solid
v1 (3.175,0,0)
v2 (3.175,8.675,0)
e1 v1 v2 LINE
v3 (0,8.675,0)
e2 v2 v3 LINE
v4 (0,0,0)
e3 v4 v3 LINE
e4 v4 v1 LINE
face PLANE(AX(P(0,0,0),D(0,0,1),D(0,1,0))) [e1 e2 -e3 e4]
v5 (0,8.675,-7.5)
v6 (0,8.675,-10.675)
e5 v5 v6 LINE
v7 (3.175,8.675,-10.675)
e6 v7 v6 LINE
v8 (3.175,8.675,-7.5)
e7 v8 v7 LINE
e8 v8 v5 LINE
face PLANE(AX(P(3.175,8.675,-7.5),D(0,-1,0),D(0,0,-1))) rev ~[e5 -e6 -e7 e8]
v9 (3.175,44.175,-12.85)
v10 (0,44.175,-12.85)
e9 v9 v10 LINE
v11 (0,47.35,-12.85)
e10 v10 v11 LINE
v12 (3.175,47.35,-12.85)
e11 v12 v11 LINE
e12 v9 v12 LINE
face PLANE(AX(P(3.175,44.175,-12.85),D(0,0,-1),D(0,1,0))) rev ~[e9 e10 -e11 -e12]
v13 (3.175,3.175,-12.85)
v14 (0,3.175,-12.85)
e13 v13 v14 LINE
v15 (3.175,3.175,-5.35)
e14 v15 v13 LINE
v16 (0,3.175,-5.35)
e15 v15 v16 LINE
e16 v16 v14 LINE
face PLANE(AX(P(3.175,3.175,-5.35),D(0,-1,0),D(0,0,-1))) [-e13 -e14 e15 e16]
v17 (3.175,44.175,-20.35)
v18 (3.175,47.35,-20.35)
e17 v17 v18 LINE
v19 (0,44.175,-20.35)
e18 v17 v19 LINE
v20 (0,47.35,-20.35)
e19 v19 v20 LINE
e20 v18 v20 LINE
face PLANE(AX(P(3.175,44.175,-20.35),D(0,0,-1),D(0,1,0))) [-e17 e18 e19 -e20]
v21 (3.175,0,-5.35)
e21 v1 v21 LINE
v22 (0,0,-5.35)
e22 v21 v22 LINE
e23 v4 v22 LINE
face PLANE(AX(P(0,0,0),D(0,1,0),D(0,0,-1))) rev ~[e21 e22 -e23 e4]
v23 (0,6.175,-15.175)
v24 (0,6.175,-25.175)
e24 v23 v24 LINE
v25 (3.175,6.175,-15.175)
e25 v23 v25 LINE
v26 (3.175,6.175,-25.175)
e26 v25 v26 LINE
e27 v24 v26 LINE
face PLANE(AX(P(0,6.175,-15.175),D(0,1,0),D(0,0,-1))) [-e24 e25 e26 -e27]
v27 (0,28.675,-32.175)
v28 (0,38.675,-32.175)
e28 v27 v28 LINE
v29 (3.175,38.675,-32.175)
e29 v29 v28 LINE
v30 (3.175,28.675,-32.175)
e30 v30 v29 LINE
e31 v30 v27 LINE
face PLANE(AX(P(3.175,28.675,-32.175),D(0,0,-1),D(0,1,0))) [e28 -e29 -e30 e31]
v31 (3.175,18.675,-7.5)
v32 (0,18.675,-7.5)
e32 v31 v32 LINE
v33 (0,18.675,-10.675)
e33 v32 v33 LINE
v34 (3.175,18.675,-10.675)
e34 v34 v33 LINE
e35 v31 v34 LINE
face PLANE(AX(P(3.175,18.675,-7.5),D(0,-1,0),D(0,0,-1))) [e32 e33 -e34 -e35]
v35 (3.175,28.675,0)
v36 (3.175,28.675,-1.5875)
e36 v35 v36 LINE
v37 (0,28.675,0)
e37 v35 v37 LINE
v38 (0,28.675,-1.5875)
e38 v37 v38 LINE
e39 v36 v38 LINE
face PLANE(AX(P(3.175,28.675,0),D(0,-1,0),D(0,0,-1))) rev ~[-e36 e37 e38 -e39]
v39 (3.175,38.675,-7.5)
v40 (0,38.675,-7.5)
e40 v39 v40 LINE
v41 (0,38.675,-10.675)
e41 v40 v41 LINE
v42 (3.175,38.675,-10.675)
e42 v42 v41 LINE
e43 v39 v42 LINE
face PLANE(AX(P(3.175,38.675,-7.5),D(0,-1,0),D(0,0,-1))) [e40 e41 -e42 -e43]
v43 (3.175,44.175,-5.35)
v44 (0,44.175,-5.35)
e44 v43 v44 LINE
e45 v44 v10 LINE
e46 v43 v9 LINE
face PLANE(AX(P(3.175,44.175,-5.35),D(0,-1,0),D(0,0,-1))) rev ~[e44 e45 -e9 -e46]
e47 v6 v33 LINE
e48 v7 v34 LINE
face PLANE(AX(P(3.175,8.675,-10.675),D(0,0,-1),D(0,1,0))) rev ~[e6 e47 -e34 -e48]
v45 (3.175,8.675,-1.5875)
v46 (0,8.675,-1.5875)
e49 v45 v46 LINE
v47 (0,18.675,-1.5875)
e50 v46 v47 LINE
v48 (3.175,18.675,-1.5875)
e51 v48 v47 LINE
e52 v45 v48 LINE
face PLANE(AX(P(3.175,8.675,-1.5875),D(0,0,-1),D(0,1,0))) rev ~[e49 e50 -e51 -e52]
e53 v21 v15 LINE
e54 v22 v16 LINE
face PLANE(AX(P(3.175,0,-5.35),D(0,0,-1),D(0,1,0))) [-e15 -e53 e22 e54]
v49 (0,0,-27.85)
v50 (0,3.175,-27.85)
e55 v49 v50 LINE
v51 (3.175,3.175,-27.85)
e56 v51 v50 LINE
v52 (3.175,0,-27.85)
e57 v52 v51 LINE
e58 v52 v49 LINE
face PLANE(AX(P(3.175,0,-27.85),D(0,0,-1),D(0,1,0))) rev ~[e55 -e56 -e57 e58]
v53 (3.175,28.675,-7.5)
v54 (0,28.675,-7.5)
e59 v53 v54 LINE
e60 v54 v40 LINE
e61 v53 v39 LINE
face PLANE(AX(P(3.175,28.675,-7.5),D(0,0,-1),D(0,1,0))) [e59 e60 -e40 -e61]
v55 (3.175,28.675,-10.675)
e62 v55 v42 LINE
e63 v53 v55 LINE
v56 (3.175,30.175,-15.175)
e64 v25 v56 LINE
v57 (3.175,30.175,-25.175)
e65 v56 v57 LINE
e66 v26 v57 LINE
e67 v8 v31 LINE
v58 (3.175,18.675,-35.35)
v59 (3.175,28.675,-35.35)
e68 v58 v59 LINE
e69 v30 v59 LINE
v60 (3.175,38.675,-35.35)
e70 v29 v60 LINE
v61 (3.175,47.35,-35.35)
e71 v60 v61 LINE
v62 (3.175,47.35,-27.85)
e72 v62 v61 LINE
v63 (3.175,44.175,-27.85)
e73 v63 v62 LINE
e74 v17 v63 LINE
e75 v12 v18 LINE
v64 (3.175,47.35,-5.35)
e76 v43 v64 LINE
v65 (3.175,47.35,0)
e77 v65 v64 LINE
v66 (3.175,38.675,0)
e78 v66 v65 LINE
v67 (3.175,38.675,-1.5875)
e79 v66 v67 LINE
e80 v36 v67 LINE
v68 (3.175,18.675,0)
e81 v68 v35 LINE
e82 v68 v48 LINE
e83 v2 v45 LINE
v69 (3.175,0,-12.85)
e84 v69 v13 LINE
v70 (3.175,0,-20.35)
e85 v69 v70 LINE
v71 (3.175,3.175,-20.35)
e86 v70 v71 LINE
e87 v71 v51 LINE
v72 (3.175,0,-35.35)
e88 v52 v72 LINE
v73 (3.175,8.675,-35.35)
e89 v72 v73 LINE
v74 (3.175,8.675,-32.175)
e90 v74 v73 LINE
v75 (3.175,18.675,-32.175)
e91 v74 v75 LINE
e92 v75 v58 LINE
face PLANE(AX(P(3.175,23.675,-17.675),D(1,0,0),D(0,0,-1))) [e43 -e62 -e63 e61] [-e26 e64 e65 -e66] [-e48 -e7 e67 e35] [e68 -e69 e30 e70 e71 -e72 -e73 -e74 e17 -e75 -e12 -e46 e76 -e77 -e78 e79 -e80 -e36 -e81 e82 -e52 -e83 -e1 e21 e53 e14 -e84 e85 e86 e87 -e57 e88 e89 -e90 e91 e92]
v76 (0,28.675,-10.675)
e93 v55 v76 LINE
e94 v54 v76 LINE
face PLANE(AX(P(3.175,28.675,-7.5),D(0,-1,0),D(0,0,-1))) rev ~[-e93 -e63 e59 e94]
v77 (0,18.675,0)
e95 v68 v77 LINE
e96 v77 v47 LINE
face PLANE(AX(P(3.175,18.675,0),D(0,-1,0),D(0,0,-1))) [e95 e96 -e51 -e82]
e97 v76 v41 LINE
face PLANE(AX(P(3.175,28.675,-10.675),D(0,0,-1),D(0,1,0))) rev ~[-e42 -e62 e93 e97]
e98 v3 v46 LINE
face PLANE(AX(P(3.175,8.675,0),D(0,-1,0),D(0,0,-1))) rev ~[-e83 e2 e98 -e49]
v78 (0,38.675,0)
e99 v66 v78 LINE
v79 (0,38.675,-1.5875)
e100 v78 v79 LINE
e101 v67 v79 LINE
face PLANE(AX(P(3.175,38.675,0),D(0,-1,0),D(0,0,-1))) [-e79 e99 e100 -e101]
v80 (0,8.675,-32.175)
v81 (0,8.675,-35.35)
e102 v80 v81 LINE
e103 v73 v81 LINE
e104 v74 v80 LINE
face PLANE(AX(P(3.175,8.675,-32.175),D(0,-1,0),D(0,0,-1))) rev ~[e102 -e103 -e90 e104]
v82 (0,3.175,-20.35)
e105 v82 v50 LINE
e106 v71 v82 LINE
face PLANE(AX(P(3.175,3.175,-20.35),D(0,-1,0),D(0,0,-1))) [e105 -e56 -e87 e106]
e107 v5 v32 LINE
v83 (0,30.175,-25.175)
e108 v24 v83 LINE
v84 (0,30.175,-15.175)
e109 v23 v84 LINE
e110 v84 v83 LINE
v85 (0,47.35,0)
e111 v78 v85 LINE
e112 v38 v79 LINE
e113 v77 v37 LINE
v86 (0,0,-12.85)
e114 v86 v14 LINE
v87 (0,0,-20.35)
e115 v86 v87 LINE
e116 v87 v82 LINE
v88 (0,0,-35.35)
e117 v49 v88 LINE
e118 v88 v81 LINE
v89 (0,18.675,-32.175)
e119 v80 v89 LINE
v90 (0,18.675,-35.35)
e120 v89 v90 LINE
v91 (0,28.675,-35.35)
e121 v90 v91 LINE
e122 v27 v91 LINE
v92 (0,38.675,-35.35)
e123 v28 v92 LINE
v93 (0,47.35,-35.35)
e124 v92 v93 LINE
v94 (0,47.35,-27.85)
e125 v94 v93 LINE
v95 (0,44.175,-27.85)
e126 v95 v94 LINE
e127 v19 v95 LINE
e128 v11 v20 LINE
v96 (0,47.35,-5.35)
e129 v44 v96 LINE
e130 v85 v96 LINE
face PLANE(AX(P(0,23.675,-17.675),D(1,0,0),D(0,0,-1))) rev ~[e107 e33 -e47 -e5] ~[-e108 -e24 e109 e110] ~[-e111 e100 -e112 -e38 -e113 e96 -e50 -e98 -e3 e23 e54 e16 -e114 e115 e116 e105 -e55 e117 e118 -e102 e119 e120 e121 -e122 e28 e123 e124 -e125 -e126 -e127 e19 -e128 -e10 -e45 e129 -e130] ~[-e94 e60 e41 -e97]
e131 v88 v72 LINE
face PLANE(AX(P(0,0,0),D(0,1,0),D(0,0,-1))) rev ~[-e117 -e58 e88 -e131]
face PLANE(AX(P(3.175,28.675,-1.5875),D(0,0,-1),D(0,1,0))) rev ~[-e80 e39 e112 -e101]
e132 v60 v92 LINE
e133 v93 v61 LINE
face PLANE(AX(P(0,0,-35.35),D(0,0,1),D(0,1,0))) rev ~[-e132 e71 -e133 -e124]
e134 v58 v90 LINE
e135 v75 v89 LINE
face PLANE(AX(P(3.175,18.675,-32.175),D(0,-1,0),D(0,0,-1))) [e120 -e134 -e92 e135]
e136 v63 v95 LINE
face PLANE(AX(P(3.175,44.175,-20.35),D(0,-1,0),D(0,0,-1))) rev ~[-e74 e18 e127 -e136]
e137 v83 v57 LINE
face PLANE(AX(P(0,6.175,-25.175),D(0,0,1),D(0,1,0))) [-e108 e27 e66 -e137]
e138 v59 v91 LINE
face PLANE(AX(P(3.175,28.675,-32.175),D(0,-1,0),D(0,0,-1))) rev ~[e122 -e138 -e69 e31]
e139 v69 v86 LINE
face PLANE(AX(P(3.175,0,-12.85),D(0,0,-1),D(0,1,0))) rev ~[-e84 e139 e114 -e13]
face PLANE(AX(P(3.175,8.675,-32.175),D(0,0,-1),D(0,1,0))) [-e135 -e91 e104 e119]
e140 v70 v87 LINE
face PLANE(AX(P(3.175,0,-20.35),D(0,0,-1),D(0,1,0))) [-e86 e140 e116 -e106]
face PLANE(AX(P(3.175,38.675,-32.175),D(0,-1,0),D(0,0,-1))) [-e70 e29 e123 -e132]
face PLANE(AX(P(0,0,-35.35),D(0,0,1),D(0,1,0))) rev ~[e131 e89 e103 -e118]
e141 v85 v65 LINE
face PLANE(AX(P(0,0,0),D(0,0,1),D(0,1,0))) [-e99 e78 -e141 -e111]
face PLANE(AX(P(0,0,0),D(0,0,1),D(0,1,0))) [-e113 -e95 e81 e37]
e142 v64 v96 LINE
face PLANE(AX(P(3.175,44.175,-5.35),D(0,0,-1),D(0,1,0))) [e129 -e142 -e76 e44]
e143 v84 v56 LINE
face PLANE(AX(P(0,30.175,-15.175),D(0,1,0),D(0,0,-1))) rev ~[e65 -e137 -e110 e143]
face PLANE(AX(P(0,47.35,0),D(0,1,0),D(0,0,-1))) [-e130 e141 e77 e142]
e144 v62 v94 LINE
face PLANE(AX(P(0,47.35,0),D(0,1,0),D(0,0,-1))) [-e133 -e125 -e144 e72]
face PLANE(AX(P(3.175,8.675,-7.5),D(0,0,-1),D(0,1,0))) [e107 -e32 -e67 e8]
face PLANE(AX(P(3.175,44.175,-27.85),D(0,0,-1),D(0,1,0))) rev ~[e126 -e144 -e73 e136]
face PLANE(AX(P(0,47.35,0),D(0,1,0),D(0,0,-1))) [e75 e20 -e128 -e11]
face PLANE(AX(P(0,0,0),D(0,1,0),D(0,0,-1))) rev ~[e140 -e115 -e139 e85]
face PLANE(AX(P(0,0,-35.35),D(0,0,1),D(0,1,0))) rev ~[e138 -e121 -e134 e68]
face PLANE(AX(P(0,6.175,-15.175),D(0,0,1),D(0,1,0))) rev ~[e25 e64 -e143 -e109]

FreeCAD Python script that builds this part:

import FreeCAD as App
import Part
import Sketcher

V = App.Vector


def add_polygon(sketch, points):
    """Adds a closed chain of lines whose ends are joined by coincident constraints."""
    first, n = sketch.GeometryCount, len(points)
    for a, b in zip(points, points[1:] + points[:1]):
        sketch.addGeometry(Part.LineSegment(App.Vector(*a, 0), App.Vector(*b, 0)), False)
    for i in range(n):
        sketch.addConstraint(Sketcher.Constraint("Coincident", first + i, 2, first + (i + 1) % n, 1))

doc = App.newDocument("Part")
params = doc.addObject("Spreadsheet::Sheet", "Params")
for row, (alias, value) in enumerate([
    ("sketch1_width", "24 mm"),
    ("sketch1_height", "10 mm"),
    ("sketch1_width2", "47.35 mm"),
    ("sketch1_height2", "35.35 mm"),
    ("pad1_length", "3.175 mm"),
    ("sketch2_width", "10 mm"),
    ("sketch2_height", "7.5 mm"),
], start=1):
    params.set(f"A{row}", alias)
    params.set(f"B{row}", "=" + value)
    params.setAlias(f"B{row}", alias)

body = doc.addObject("PartDesign::Body", "Body")

# Sketch on YZ plane
sketch1 = doc.addObject("Sketcher::SketchObject", "Sketch")
body.addObject(sketch1)
sketch1.AttachmentSupport = (doc.YZ_Plane, [""])
sketch1.MapMode = "FlatFace"
add_polygon(sketch1, [(47, 0), (0, 0), (0, -35), (47, -35)])  # lines 0-3
add_polygon(sketch1, [(6, -25), (6, -15), (30, -15), (30, -25)])  # lines 4-7
sketch1.addConstraint([
    Sketcher.Constraint("Horizontal", 0),
    Sketcher.Constraint("Vertical", 1),
    Sketcher.Constraint("Horizontal", 2),
    Sketcher.Constraint("Vertical", 3),
    Sketcher.Constraint("Vertical", 4),
    Sketcher.Constraint("Horizontal", 5),
    Sketcher.Constraint("Vertical", 6),
    Sketcher.Constraint("Horizontal", 7),
    Sketcher.Constraint("Coincident", 0, 2, -1, 1),
    Sketcher.Constraint("DistanceX", 5, 1, 5, 2, 24.0),
    Sketcher.Constraint("DistanceY", 4, 1, 4, 2, 10.0),
    Sketcher.Constraint("DistanceX", 0, 2, 0, 1, 47.35),
    Sketcher.Constraint("DistanceY", 1, 2, 1, 1, 35.35),
    Sketcher.Constraint("DistanceX", -1, 1, 4, 2, 6.175),
    Sketcher.Constraint("DistanceY", 4, 2, -1, 1, 15.175),
])
sketch1.setExpression("Constraints[17]", "Params.sketch1_width")
sketch1.setExpression("Constraints[18]", "Params.sketch1_height")
sketch1.setExpression("Constraints[19]", "Params.sketch1_width2")
sketch1.setExpression("Constraints[20]", "Params.sketch1_height2")
pad1 = doc.addObject("PartDesign::Pad", "Pad")
body.addObject(pad1)
pad1.Profile = sketch1
pad1.setExpression("Length", "Params.pad1_length")

# Sketch on YZ plane
sketch2 = doc.addObject("Sketcher::SketchObject", "Sketch001")
body.addObject(sketch2)
sketch2.AttachmentSupport = (doc.YZ_Plane, [""])
sketch2.MapMode = "FlatFace"
sketch2.AttachmentOffset = App.Placement(V(0, 0, 3.175), App.Rotation())
add_polygon(sketch2, [(38.7, -32.2), (28.7, -32.2), (28.7, -35.4), (38.7, -35.4)])  # lines 0-3
add_polygon(sketch2, [(18.7, -32.2), (8.7, -32.2), (8.7, -35.4), (18.7, -35.4)])  # lines 4-7
add_polygon(sketch2, [(18.7, -7.5), (8.7, -7.5), (8.7, -10.7), (18.7, -10.7)])  # lines 8-11
add_polygon(sketch2, [(38.7, -7.5), (28.7, -7.5), (28.7, -10.7), (38.7, -10.7)])  # lines 12-15
add_polygon(sketch2, [(38.7, 0), (28.7, 0), (28.7, -1.6), (38.7, -1.6)])  # lines 16-19
add_polygon(sketch2, [(18.7, 0), (8.7, 0), (8.7, -1.6), (18.7, -1.6)])  # lines 20-23
add_polygon(sketch2, [(47.4, -20.4), (44.2, -20.4), (44.2, -27.9), (47.4, -27.9)])  # lines 24-27
add_polygon(sketch2, [(47.4, -5.3), (44.2, -5.3), (44.2, -12.8), (47.4, -12.8)])  # lines 28-31
add_polygon(sketch2, [(3.2, -5.3), (0, -5.3), (0, -12.8), (3.2, -12.8)])  # lines 32-35
add_polygon(sketch2, [(3.2, -20.4), (0, -20.4), (0, -27.9), (3.2, -27.9)])  # lines 36-39
sketch2.addConstraint([
    Sketcher.Constraint("Horizontal", 0),
    Sketcher.Constraint("Vertical", 1),
    Sketcher.Constraint("Horizontal", 2),
    Sketcher.Constraint("Vertical", 3),
    Sketcher.Constraint("Horizontal", 4),
    Sketcher.Constraint("Vertical", 5),
    Sketcher.Constraint("Horizontal", 6),
    Sketcher.Constraint("Vertical", 7),
    Sketcher.Constraint("Horizontal", 8),
    Sketcher.Constraint("Vertical", 9),
    Sketcher.Constraint("Horizontal", 10),
    Sketcher.Constraint("Vertical", 11),
    Sketcher.Constraint("Horizontal", 12),
    Sketcher.Constraint("Vertical", 13),
    Sketcher.Constraint("Horizontal", 14),
    Sketcher.Constraint("Vertical", 15),
    Sketcher.Constraint("Horizontal", 16),
    Sketcher.Constraint("Vertical", 17),
    Sketcher.Constraint("Horizontal", 18),
    Sketcher.Constraint("Vertical", 19),
    Sketcher.Constraint("Horizontal", 20),
    Sketcher.Constraint("Vertical", 21),
    Sketcher.Constraint("Horizontal", 22),
    Sketcher.Constraint("Vertical", 23),
    Sketcher.Constraint("Horizontal", 24),
    Sketcher.Constraint("Vertical", 25),
    Sketcher.Constraint("Horizontal", 26),
    Sketcher.Constraint("Vertical", 27),
    Sketcher.Constraint("Horizontal", 28),
    Sketcher.Constraint("Vertical", 29),
    Sketcher.Constraint("Horizontal", 30),
    Sketcher.Constraint("Vertical", 31),
    Sketcher.Constraint("Horizontal", 32),
    Sketcher.Constraint("Vertical", 33),
    Sketcher.Constraint("Horizontal", 34),
    Sketcher.Constraint("Vertical", 35),
    Sketcher.Constraint("Horizontal", 36),
    Sketcher.Constraint("Vertical", 37),
    Sketcher.Constraint("Horizontal", 38),
    Sketcher.Constraint("Vertical", 39),
    Sketcher.Constraint("PointOnObject", 16, 2, -1),
    Sketcher.Constraint("PointOnObject", 20, 2, -1),
    Sketcher.Constraint("PointOnObject", 32, 2, -2),
    Sketcher.Constraint("PointOnObject", 36, 2, -2),
    Sketcher.Constraint("Horizontal", 3, 2, 4, 2),
    Sketcher.Constraint("Horizontal", 2, 2, 5, 2),
    Sketcher.Constraint("Horizontal", 11, 2, 12, 2),
    Sketcher.Constraint("Horizontal", 10, 2, 13, 2),
    Sketcher.Constraint("Horizontal", 18, 2, 21, 2),
    Sketcher.Constraint("Horizontal", 31, 2, 32, 2),
    Sketcher.Constraint("Horizontal", 30, 2, 33, 2),
    Sketcher.Constraint("Horizontal", 27, 2, 36, 2),
    Sketcher.Constraint("Horizontal", 26, 2, 37, 2),
    Sketcher.Constraint("Vertical", 5, 2, 8, 2),
    Sketcher.Constraint("Vertical", 7, 2, 10, 2),
    Sketcher.Constraint("Vertical", 1, 2, 12, 2),
    Sketcher.Constraint("Vertical", 3, 2, 14, 2),
    Sketcher.Constraint("Vertical", 13, 2, 16, 2),
    Sketcher.Constraint("Vertical", 15, 2, 18, 2),
    Sketcher.Constraint("Vertical", 9, 2, 20, 2),
    Sketcher.Constraint("Vertical", 11, 2, 22, 2),
    Sketcher.Constraint("Vertical", 25, 2, 28, 2),
    Sketcher.Constraint("Vertical", 27, 2, 30, 2),
    Sketcher.Constraint("Vertical", 35, 2, 38, 2),
    Sketcher.Constraint("Equal", 2, 4),
    Sketcher.Constraint("Equal", 30, 32),
    Sketcher.Constraint("Equal", 38, 1),
    Sketcher.Constraint("Equal", 7, 9),
    Sketcher.Constraint("Equal", 27, 29),
    Sketcher.Constraint("DistanceX", 0, 2, 0, 1, 10.0),
    Sketcher.Constraint("DistanceY", 25, 2, 25, 1, 7.5),
    Sketcher.Constraint("DistanceX", 4, 2, 0, 2, 20.0),
    Sketcher.Constraint("DistanceY", 2, 2, 24, 2, 15.0),
    Sketcher.Constraint("DistanceY", 24, 2, 28, 2, 15.0),
    Sketcher.Constraint("DistanceY", 8, 2, -1, 1, 7.5),
    Sketcher.Constraint("DistanceY", 4, 2, 9, 2, 21.5),
    Sketcher.Constraint("DistanceX", 14, 2, 24, 2, 5.5),
    Sketcher.Constraint("DistanceX", 34, 2, 9, 2, 5.5),
    Sketcher.Constraint("DistanceX", 24, 2, 24, 1, 3.175),
    Sketcher.Constraint("DistanceY", 17, 2, 17, 1, 1.5875),
])
sketch2.setExpression("Constraints[109]", "Params.sketch2_width")
sketch2.setExpression("Constraints[110]", "Params.sketch2_height")
pocket1 = doc.addObject("PartDesign::Pocket", "Pocket")
body.addObject(pocket1)
pocket1.Profile = sketch2
pocket1.Type = "ThroughAll"

doc.recompute()
